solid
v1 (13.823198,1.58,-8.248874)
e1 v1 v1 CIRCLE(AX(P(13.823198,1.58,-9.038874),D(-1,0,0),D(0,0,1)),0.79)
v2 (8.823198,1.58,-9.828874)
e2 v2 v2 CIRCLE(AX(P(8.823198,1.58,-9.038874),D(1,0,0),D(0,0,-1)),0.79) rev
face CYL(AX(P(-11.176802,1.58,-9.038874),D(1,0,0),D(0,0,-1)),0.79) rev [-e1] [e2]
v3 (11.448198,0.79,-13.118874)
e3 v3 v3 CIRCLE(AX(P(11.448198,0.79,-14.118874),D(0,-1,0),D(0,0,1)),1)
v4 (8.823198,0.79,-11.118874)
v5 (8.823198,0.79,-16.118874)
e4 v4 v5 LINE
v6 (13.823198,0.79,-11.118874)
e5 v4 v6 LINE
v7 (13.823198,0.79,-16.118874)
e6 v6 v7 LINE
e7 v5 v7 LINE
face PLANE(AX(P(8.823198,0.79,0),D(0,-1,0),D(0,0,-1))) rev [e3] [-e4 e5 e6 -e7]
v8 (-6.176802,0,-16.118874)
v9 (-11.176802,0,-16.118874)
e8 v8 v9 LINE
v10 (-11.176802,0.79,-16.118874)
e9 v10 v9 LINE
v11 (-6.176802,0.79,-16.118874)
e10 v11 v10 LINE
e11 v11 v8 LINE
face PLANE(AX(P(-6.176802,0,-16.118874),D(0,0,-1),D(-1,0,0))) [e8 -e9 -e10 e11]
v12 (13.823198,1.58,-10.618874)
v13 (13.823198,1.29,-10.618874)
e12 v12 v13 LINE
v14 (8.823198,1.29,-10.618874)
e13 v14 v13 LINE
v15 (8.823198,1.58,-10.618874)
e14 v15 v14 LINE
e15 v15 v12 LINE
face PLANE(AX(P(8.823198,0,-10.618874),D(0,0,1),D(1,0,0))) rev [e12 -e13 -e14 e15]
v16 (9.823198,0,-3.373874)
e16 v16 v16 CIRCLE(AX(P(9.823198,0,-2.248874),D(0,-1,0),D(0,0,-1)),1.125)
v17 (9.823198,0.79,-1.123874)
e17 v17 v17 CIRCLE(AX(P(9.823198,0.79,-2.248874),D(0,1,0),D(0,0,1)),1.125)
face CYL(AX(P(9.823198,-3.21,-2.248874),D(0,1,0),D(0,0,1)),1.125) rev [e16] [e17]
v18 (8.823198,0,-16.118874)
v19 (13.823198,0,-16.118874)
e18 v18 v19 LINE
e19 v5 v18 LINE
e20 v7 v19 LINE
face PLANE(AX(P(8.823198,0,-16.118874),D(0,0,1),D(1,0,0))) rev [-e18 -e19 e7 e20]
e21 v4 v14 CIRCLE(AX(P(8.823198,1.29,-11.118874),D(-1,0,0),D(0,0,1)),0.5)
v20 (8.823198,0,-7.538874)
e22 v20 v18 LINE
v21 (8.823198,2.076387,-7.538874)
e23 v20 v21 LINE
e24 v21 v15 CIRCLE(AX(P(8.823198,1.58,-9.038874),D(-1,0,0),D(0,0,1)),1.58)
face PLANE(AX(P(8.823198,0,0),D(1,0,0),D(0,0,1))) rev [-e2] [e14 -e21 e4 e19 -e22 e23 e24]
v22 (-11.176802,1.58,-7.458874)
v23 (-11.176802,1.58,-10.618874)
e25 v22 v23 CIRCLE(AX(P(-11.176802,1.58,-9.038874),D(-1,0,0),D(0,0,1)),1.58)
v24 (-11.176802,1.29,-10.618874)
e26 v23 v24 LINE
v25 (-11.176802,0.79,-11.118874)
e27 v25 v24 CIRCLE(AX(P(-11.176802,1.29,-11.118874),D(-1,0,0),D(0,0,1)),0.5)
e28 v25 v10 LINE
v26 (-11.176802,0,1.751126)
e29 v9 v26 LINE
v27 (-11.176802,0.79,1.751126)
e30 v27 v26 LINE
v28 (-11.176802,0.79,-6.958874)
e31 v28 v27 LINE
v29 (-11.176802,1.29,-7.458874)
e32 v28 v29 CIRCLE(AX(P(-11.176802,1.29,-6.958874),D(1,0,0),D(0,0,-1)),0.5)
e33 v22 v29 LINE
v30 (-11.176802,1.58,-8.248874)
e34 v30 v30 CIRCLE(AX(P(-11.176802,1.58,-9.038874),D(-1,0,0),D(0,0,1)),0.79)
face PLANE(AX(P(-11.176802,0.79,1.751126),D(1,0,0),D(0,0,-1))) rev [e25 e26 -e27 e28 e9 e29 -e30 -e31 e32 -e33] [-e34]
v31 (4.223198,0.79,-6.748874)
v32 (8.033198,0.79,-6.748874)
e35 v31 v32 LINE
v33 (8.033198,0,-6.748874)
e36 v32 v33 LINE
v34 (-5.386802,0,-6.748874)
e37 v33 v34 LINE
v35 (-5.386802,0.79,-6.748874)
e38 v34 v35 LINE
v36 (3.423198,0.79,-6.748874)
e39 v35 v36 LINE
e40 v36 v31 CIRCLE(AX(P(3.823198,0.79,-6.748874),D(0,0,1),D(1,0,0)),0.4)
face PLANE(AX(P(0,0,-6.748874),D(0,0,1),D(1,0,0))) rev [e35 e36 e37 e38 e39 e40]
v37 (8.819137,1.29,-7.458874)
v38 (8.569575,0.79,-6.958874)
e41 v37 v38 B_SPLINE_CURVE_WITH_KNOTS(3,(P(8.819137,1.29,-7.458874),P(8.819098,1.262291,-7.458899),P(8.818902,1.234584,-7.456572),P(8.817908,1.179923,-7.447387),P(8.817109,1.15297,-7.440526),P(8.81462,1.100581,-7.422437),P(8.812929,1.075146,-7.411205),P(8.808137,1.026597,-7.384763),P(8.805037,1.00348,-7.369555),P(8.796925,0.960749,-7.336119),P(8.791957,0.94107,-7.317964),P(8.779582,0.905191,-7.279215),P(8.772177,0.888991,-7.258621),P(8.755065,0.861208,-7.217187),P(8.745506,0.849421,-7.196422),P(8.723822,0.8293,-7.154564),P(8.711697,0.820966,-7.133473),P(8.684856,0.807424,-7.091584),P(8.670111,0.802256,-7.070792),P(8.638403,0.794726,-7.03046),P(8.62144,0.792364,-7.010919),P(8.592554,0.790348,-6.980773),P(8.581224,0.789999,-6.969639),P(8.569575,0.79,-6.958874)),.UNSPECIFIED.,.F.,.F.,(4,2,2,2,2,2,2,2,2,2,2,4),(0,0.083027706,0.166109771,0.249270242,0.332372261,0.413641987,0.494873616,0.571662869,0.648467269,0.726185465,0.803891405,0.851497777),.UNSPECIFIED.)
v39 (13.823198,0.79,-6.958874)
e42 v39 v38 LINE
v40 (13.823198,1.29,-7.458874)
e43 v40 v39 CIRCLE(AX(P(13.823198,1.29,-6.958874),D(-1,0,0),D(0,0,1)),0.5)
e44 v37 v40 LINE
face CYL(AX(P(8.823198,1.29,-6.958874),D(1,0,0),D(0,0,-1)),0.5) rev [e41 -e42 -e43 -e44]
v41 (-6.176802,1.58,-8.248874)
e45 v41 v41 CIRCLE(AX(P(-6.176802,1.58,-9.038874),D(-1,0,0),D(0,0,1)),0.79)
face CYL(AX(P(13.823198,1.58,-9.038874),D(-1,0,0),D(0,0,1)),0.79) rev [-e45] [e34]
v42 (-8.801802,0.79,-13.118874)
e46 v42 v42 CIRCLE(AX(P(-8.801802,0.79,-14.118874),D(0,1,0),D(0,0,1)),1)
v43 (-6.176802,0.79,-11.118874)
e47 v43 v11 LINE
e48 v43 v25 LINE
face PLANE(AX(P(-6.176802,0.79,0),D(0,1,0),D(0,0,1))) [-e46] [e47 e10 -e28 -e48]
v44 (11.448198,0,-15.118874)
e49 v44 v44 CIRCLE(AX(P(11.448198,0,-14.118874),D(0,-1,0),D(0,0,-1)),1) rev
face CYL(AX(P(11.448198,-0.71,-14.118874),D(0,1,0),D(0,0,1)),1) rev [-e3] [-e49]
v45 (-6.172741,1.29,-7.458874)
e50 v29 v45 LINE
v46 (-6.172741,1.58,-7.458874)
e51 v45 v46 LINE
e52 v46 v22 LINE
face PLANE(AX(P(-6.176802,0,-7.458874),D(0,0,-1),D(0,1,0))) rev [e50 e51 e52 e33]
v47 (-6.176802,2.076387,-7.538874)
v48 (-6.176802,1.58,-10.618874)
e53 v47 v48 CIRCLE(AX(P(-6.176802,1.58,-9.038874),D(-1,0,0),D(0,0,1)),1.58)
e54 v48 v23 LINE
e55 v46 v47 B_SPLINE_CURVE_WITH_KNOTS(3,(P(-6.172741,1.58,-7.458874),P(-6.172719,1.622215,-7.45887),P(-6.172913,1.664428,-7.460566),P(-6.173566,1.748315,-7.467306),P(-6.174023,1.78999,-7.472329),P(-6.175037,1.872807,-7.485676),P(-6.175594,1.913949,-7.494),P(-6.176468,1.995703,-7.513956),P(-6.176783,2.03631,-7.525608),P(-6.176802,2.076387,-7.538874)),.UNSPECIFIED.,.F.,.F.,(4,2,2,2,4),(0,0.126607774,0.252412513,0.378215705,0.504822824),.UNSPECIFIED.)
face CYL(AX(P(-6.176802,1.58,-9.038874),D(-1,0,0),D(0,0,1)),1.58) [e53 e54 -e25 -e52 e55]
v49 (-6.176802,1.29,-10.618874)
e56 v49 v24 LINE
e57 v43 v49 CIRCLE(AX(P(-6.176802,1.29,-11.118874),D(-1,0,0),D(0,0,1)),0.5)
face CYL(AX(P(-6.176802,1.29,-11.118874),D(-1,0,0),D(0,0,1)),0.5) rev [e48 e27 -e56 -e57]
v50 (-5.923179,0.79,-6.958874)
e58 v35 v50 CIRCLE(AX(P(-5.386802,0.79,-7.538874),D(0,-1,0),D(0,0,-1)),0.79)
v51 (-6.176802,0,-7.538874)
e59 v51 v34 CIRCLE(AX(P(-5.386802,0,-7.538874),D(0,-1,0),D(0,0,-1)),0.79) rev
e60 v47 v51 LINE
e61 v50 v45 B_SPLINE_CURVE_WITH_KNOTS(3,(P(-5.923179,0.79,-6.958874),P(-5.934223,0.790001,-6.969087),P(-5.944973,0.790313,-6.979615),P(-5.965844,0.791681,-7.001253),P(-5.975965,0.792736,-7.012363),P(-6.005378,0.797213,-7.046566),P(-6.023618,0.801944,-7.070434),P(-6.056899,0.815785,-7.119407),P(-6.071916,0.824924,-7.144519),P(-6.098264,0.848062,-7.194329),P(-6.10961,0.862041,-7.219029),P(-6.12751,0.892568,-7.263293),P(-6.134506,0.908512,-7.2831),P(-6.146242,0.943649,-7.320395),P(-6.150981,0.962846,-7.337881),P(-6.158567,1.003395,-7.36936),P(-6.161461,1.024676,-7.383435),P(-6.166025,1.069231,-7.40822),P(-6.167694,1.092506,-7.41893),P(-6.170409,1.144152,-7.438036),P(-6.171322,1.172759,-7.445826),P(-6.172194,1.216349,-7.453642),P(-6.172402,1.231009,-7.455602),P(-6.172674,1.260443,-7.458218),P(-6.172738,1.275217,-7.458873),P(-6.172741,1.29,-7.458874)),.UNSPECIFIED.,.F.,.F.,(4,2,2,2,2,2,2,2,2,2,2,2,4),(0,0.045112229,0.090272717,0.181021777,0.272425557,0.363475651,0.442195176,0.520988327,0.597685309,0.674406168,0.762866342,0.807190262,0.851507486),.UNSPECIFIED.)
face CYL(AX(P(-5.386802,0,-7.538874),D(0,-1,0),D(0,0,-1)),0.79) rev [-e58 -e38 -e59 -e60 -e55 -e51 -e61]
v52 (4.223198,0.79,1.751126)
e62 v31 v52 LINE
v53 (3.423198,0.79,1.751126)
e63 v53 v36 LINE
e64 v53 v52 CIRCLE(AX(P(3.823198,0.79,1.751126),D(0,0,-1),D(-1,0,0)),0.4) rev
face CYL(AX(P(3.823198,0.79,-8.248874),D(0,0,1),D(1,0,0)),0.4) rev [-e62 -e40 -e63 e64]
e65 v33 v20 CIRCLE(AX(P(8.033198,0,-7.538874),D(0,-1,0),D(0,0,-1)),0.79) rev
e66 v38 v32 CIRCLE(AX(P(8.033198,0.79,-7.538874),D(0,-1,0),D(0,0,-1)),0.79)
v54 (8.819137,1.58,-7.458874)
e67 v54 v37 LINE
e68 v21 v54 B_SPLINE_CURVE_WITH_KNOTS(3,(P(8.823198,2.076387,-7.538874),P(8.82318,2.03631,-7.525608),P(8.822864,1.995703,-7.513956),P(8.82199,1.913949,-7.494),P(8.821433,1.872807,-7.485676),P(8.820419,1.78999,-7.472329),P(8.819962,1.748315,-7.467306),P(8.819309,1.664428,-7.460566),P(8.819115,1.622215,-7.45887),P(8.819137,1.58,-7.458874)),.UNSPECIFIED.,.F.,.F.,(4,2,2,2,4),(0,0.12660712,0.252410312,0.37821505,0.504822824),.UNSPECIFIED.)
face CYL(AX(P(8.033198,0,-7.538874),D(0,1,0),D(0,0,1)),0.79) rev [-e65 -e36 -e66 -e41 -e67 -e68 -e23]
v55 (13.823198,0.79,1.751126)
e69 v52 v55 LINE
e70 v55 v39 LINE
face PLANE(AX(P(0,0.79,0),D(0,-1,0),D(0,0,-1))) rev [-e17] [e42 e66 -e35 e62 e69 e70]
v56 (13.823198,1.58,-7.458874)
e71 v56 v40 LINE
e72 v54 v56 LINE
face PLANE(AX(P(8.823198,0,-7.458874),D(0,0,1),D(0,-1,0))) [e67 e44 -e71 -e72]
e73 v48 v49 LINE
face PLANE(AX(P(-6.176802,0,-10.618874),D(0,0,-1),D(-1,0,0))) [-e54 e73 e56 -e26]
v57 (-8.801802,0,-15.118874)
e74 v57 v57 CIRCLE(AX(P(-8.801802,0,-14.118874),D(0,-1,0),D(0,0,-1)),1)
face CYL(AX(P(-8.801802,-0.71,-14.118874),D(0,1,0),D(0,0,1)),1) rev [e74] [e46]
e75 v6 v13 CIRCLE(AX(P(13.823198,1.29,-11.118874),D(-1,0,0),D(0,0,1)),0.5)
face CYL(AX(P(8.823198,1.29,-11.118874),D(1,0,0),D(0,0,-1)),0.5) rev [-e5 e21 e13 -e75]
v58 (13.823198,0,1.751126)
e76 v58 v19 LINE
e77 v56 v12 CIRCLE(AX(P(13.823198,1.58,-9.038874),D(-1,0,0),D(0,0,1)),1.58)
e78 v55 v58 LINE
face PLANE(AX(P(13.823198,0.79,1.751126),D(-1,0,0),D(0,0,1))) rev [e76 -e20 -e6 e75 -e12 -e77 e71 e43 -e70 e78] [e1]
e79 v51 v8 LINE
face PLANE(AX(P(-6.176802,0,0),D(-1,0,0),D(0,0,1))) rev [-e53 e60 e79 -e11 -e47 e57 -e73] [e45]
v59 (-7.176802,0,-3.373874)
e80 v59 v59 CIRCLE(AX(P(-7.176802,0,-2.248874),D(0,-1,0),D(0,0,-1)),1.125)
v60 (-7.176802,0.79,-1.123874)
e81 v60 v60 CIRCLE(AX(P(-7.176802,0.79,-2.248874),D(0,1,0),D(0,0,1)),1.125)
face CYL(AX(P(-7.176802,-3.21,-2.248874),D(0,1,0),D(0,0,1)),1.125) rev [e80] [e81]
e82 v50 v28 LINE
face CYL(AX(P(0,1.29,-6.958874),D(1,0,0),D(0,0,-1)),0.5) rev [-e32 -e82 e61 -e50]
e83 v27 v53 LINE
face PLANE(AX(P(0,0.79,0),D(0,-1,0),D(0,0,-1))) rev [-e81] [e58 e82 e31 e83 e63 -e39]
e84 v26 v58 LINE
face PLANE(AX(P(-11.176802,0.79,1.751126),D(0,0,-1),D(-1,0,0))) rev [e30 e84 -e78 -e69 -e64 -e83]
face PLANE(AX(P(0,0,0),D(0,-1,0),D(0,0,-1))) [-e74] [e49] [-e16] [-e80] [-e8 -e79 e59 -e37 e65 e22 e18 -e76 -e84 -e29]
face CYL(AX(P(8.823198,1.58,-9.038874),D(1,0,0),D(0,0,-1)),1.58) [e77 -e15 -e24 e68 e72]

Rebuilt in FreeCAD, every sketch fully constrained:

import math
import FreeCAD as App
import Part
import Sketcher
from FreeCAD import Vector
Q = App.Units.Quantity


def edges_at(feature, points):
    """Names of the edges that pass closest to the given points."""
    edges = feature.Shape.Edges
    near = lambda p: min(range(len(edges)), key=lambda i: edges[i].distToShape(Part.Vertex(*p))[0])
    return sorted({f"Edge{near(p) + 1}" for p in points})


def add_polygon(sketch, points):
    """Adds a closed chain of lines whose ends are joined by coincident constraints."""
    first, n = sketch.GeometryCount, len(points)
    for a, b in zip(points, points[1:] + points[:1]):
        sketch.addGeometry(Part.LineSegment(App.Vector(*a, 0), App.Vector(*b, 0)), False)
    for i in range(n):
        sketch.addConstraint(Sketcher.Constraint("Coincident", first + i, 2, first + (i + 1) % n, 1))

doc = App.newDocument("Part")
body = doc.addObject("PartDesign::Body", "Body")

sketch1 = body.newObject("Sketcher::SketchObject", "Sketch")
sketch1.AttachmentSupport = (doc.getObject("XZ_Plane"), [""])
sketch1.MapMode = "FlatFace"
add_polygon(sketch1, [(-11, -8), (-11, 2), (14, 2), (14, -8)])
sketch1.addConstraint([
    Sketcher.Constraint("Vertical", 0),
    Sketcher.Constraint("Horizontal", 1),
    Sketcher.Constraint("Vertical", 2),
    Sketcher.Constraint("Horizontal", 3),
    Sketcher.Constraint("DistanceX", 1, 1, 1, 2, Q("25 mm")),
    Sketcher.Constraint("DistanceY", 0, 1, 0, 2, Q("10 mm")),
    Sketcher.Constraint("DistanceX", 0, 2, -1, 1, Q("11.176802 mm")),
    Sketcher.Constraint("DistanceY", -1, 1, 0, 2, Q("1.751126 mm")),
])
pad1 = body.newObject("PartDesign::Pad", "Pad")
pad1.Profile = sketch1
pad1.Length = 0.79
pad1.Reversed = True

sketch2 = body.newObject("Sketcher::SketchObject", "Sketch001")
sketch2.AttachmentSupport = (doc.getObject("YZ_Plane"), [""])
sketch2.MapMode = "FlatFace"
sketch2.AttachmentOffset = App.Placement(Vector(0, 0, -11.176802), App.Rotation())
sketch2.addGeometry([
    Part.LineSegment(Vector(0, -8.25, 0), Vector(0.79, -8.25, 0)),
    Part.LineSegment(Vector(0.79, -8.25, 0), Vector(0.79, -7.46, 0)),
    Part.LineSegment(Vector(0.79, -7.46, 0), Vector(1.58, -7.46, 0)),
    Part.ArcOfCircle(Part.Circle(Vector(1.58, -9.04, 0), Vector(0, 0, 1), 1.58), math.radians(-90), math.radians(90)),
    Part.LineSegment(Vector(1.58, -10.62, 0), Vector(1.29, -10.62, 0)),
    Part.ArcOfCircle(Part.Circle(Vector(1.29, -11.12, 0), Vector(0, 0, 1), 0.5), math.radians(90), math.radians(180)),
    Part.LineSegment(Vector(0.79, -11.12, 0), Vector(0.79, -16.12, 0)),
    Part.LineSegment(Vector(0.79, -16.12, 0), Vector(0, -16.12, 0)),
    Part.LineSegment(Vector(0, -16.12, 0), Vector(0, -8.25, 0)),
], False)
sketch2.addConstraint([
    Sketcher.Constraint("Coincident", 0, 2, 1, 1),
    Sketcher.Constraint("Coincident", 1, 2, 2, 1),
    Sketcher.Constraint("Tangent", 2, 2, 3, 2),
    Sketcher.Constraint("Tangent", 3, 1, 4, 1),
    Sketcher.Constraint("Tangent", 4, 2, 5, 1),
    Sketcher.Constraint("Tangent", 5, 2, 6, 1),
    Sketcher.Constraint("Coincident", 6, 2, 7, 1),
    Sketcher.Constraint("Coincident", 7, 2, 8, 1),
    Sketcher.Constraint("Coincident", 8, 2, 0, 1),
    Sketcher.Constraint("Horizontal", 0),
    Sketcher.Constraint("Vertical", 1),
    Sketcher.Constraint("Horizontal", 2),
    Sketcher.Constraint("Horizontal", 4),
    Sketcher.Constraint("Vertical", 6),
    Sketcher.Constraint("Horizontal", 7),
    Sketcher.Constraint("Vertical", 8),
    Sketcher.Constraint("PointOnObject", 7, 2, -2),
    Sketcher.Constraint("Vertical", 1, 2, 5, 2),
    Sketcher.Constraint("Equal", 0, 2),
    Sketcher.Constraint("Equal", 7, 1),
    Sketcher.Constraint("Radius", 5, Q("0.5 mm")),
    Sketcher.Constraint("DistanceY", 6, 2, 6, 1, Q("5 mm")),
    Sketcher.Constraint("Radius", 3, Q("1.58 mm")),
    Sketcher.Constraint("DistanceX", 0, 1, 0, 2, Q("0.79 mm")),
    Sketcher.Constraint("DistanceY", 3, 3, -1, 1, Q("9.038874 mm")),
])
pad2 = body.newObject("PartDesign::Pad", "Pad001")
pad2.Profile = sketch2
pad2.Length = 5

sketch3 = body.newObject("Sketcher::SketchObject", "Sketch002")
sketch3.AttachmentSupport = (doc.getObject("YZ_Plane"), [""])
sketch3.MapMode = "FlatFace"
sketch3.AttachmentOffset = App.Placement(Vector(0, 0, -11.176802), App.Rotation())
sketch3.addGeometry(Part.Circle(Vector(1.6, -9, 0), Vector(0, 0, 1), 0.8), False)
sketch3.addConstraint([
    Sketcher.Constraint("Diameter", 0, Q("1.58 mm")),
    Sketcher.Constraint("DistanceX", -1, 1, 0, 3, Q("1.58 mm")),
    Sketcher.Constraint("DistanceY", 0, 3, -1, 1, Q("9.038874 mm")),
])
pocket1 = body.newObject("PartDesign::Pocket", "Pocket")
pocket1.Profile = sketch3
pocket1.Type = "ThroughAll"
pocket1.Reversed = True

sketch4 = body.newObject("Sketcher::SketchObject", "Sketch003")
sketch4.AttachmentSupport = (doc.getObject("XZ_Plane"), [""])
sketch4.MapMode = "FlatFace"
sketch4.AttachmentOffset = App.Placement(Vector(0, 0, -0.79), App.Rotation())
sketch4.addGeometry([
    Part.Circle(Vector(-7.2, -2.2, 0), Vector(0, 0, 1), 1.1),
    Part.Circle(Vector(9.8, -2.2, 0), Vector(0, 0, 1), 1.1),
], False)
sketch4.addConstraint([
    Sketcher.Constraint("Equal", 0, 1),
    Sketcher.Constraint("Horizontal", 0, 3, 1, 3),
    Sketcher.Constraint("Diameter", 0, Q("2.25 mm")),
    Sketcher.Constraint("DistanceX", 0, 3, 1, 3, Q("17 mm")),
    Sketcher.Constraint("DistanceX", 0, 3, -1, 1, Q("7.176802 mm")),
    Sketcher.Constraint("DistanceY", 0, 3, -1, 1, Q("2.248874 mm")),
])
pocket2 = body.newObject("PartDesign::Pocket", "Pocket001")
pocket2.Profile = sketch4
pocket2.Length = 4
pocket2.Reversed = True

sketch5 = body.newObject("Sketcher::SketchObject", "Sketch004")
sketch5.AttachmentSupport = (doc.getObject("XZ_Plane"), [""])
sketch5.MapMode = "FlatFace"
sketch5.AttachmentOffset = App.Placement(Vector(0, 0, -0.79), App.Rotation())
sketch5.addGeometry(Part.Circle(Vector(-8.8, -14.1, 0), Vector(0, 0, 1), 1), False)
sketch5.addConstraint([
    Sketcher.Constraint("Diameter", 0, Q("2 mm")),
    Sketcher.Constraint("DistanceX", 0, 3, -1, 1, Q("8.801802 mm")),
    Sketcher.Constraint("DistanceY", 0, 3, -1, 1, Q("14.118874 mm")),
])
pocket3 = body.newObject("PartDesign::Pocket", "Pocket002")
pocket3.Profile = sketch5
pocket3.Length = 1.5
pocket3.Reversed = True
doc.recompute()

fillet = body.newObject("PartDesign::Fillet", "Fillet")
fillet.Base = (pocket3, edges_at(pocket3, [(-8.677, 0.79, -7.459)]))
fillet.Radius = 0.5
doc.recompute()

datumplane = body.newObject("PartDesign::Plane", "DatumPlane")
datumplane.AttachmentSupport = (doc.getObject("YZ_Plane"), [""])
datumplane.MapMode = "FlatFace"
datumplane.AttachmentOffset = App.Placement(Vector(0, 0, 1.323198), App.Rotation())
mirrored = body.newObject("PartDesign::Mirrored", "Mirrored")
mirrored.Originals = [pad2, pocket1, pocket3]
mirrored.MirrorPlane = (datumplane, [""])
body.Tip = mirrored
doc.recompute()

fillet2 = body.newObject("PartDesign::Fillet", "Fillet001")
fillet2.Base = (mirrored, edges_at(mirrored, [(11.323, 0.79, -7.459)]))
fillet2.Radius = 0.5

sketch6 = body.newObject("Sketcher::SketchObject", "Sketch005")
sketch6.AttachmentSupport = (doc.getObject("XY_Plane"), [""])
sketch6.MapMode = "FlatFace"
sketch6.AttachmentOffset = App.Placement(Vector(0, 0, -8.248874), App.Rotation())
add_polygon(sketch6, [(-6.2, 0.8), (8.8, 0.8), (8.8, 0), (-6.2, 0)])
sketch6.addConstraint([
    Sketcher.Constraint("Horizontal", 0),
    Sketcher.Constraint("Vertical", 1),
    Sketcher.Constraint("Horizontal", 2),
    Sketcher.Constraint("Vertical", 3),
    Sketcher.Constraint("PointOnObject", 1, 2, -1),
    Sketcher.Constraint("DistanceX", 0, 1, 0, 2, Q("15 mm")),
    Sketcher.Constraint("DistanceY", 1, 2, 1, 1, Q("0.79 mm")),
    Sketcher.Constraint("DistanceX", -1, 1, 0, 2, Q("8.823198 mm")),
])
pocket4 = body.newObject("PartDesign::Pocket", "Pocket003")
pocket4.Profile = sketch6
pocket4.Length = 1.5
pocket4.Reversed = True
doc.recompute()

fillet3 = body.newObject("PartDesign::Fillet", "Fillet002")
fillet3.Base = (pocket4, edges_at(pocket4, [(-6.177, 0.395, -6.749), (8.823, 0.395, -6.749)]))
fillet3.Radius = 0.79

sketch7 = body.newObject("Sketcher::SketchObject", "Sketch006")
sketch7.AttachmentSupport = (doc.getObject("XY_Plane"), [""])
sketch7.MapMode = "FlatFace"
sketch7.AttachmentOffset = App.Placement(Vector(0, 0, 1.751126), App.Rotation())
sketch7.addGeometry(Part.Circle(Vector(3.82, 0.79, 0), Vector(0, 0, 1), 0.4), False)
sketch7.addConstraint([
    Sketcher.Constraint("Diameter", 0, Q("0.8 mm")),
    Sketcher.Constraint("DistanceY", -1, 1, 0, 3, Q("0.79 mm")),
    Sketcher.Constraint("DistanceX", -1, 1, 0, 3, Q("3.823198 mm")),
])

sketch8 = body.newObject("Sketcher::SketchObject", "Sketch007")
sketch8.AttachmentSupport = (doc.getObject("XZ_Plane"), [""])
sketch8.MapMode = "FlatFace"
sketch8.AttachmentOffset = App.Placement(Vector(0, 0, -0.79), App.Rotation())
sketch8.addGeometry(Part.LineSegment(Vector(4, -8, 0), Vector(4, 2, 0)), False)
sketch8.addConstraint([
    Sketcher.Constraint("Vertical", 0),
    Sketcher.Constraint("DistanceY", 0, 1, 0, 2, Q("10 mm")),
    Sketcher.Constraint("DistanceX", -1, 1, 0, 1, Q("3.823198 mm")),
    Sketcher.Constraint("DistanceY", 0, 1, -1, 1, Q("8.248874 mm")),
])
doc.recompute()

subtractivepipe = body.newObject("PartDesign::SubtractivePipe", "SubtractivePipe")
subtractivepipe.Profile = sketch7
subtractivepipe.Spine = (sketch8, ["Edge1"])

doc.recompute()
